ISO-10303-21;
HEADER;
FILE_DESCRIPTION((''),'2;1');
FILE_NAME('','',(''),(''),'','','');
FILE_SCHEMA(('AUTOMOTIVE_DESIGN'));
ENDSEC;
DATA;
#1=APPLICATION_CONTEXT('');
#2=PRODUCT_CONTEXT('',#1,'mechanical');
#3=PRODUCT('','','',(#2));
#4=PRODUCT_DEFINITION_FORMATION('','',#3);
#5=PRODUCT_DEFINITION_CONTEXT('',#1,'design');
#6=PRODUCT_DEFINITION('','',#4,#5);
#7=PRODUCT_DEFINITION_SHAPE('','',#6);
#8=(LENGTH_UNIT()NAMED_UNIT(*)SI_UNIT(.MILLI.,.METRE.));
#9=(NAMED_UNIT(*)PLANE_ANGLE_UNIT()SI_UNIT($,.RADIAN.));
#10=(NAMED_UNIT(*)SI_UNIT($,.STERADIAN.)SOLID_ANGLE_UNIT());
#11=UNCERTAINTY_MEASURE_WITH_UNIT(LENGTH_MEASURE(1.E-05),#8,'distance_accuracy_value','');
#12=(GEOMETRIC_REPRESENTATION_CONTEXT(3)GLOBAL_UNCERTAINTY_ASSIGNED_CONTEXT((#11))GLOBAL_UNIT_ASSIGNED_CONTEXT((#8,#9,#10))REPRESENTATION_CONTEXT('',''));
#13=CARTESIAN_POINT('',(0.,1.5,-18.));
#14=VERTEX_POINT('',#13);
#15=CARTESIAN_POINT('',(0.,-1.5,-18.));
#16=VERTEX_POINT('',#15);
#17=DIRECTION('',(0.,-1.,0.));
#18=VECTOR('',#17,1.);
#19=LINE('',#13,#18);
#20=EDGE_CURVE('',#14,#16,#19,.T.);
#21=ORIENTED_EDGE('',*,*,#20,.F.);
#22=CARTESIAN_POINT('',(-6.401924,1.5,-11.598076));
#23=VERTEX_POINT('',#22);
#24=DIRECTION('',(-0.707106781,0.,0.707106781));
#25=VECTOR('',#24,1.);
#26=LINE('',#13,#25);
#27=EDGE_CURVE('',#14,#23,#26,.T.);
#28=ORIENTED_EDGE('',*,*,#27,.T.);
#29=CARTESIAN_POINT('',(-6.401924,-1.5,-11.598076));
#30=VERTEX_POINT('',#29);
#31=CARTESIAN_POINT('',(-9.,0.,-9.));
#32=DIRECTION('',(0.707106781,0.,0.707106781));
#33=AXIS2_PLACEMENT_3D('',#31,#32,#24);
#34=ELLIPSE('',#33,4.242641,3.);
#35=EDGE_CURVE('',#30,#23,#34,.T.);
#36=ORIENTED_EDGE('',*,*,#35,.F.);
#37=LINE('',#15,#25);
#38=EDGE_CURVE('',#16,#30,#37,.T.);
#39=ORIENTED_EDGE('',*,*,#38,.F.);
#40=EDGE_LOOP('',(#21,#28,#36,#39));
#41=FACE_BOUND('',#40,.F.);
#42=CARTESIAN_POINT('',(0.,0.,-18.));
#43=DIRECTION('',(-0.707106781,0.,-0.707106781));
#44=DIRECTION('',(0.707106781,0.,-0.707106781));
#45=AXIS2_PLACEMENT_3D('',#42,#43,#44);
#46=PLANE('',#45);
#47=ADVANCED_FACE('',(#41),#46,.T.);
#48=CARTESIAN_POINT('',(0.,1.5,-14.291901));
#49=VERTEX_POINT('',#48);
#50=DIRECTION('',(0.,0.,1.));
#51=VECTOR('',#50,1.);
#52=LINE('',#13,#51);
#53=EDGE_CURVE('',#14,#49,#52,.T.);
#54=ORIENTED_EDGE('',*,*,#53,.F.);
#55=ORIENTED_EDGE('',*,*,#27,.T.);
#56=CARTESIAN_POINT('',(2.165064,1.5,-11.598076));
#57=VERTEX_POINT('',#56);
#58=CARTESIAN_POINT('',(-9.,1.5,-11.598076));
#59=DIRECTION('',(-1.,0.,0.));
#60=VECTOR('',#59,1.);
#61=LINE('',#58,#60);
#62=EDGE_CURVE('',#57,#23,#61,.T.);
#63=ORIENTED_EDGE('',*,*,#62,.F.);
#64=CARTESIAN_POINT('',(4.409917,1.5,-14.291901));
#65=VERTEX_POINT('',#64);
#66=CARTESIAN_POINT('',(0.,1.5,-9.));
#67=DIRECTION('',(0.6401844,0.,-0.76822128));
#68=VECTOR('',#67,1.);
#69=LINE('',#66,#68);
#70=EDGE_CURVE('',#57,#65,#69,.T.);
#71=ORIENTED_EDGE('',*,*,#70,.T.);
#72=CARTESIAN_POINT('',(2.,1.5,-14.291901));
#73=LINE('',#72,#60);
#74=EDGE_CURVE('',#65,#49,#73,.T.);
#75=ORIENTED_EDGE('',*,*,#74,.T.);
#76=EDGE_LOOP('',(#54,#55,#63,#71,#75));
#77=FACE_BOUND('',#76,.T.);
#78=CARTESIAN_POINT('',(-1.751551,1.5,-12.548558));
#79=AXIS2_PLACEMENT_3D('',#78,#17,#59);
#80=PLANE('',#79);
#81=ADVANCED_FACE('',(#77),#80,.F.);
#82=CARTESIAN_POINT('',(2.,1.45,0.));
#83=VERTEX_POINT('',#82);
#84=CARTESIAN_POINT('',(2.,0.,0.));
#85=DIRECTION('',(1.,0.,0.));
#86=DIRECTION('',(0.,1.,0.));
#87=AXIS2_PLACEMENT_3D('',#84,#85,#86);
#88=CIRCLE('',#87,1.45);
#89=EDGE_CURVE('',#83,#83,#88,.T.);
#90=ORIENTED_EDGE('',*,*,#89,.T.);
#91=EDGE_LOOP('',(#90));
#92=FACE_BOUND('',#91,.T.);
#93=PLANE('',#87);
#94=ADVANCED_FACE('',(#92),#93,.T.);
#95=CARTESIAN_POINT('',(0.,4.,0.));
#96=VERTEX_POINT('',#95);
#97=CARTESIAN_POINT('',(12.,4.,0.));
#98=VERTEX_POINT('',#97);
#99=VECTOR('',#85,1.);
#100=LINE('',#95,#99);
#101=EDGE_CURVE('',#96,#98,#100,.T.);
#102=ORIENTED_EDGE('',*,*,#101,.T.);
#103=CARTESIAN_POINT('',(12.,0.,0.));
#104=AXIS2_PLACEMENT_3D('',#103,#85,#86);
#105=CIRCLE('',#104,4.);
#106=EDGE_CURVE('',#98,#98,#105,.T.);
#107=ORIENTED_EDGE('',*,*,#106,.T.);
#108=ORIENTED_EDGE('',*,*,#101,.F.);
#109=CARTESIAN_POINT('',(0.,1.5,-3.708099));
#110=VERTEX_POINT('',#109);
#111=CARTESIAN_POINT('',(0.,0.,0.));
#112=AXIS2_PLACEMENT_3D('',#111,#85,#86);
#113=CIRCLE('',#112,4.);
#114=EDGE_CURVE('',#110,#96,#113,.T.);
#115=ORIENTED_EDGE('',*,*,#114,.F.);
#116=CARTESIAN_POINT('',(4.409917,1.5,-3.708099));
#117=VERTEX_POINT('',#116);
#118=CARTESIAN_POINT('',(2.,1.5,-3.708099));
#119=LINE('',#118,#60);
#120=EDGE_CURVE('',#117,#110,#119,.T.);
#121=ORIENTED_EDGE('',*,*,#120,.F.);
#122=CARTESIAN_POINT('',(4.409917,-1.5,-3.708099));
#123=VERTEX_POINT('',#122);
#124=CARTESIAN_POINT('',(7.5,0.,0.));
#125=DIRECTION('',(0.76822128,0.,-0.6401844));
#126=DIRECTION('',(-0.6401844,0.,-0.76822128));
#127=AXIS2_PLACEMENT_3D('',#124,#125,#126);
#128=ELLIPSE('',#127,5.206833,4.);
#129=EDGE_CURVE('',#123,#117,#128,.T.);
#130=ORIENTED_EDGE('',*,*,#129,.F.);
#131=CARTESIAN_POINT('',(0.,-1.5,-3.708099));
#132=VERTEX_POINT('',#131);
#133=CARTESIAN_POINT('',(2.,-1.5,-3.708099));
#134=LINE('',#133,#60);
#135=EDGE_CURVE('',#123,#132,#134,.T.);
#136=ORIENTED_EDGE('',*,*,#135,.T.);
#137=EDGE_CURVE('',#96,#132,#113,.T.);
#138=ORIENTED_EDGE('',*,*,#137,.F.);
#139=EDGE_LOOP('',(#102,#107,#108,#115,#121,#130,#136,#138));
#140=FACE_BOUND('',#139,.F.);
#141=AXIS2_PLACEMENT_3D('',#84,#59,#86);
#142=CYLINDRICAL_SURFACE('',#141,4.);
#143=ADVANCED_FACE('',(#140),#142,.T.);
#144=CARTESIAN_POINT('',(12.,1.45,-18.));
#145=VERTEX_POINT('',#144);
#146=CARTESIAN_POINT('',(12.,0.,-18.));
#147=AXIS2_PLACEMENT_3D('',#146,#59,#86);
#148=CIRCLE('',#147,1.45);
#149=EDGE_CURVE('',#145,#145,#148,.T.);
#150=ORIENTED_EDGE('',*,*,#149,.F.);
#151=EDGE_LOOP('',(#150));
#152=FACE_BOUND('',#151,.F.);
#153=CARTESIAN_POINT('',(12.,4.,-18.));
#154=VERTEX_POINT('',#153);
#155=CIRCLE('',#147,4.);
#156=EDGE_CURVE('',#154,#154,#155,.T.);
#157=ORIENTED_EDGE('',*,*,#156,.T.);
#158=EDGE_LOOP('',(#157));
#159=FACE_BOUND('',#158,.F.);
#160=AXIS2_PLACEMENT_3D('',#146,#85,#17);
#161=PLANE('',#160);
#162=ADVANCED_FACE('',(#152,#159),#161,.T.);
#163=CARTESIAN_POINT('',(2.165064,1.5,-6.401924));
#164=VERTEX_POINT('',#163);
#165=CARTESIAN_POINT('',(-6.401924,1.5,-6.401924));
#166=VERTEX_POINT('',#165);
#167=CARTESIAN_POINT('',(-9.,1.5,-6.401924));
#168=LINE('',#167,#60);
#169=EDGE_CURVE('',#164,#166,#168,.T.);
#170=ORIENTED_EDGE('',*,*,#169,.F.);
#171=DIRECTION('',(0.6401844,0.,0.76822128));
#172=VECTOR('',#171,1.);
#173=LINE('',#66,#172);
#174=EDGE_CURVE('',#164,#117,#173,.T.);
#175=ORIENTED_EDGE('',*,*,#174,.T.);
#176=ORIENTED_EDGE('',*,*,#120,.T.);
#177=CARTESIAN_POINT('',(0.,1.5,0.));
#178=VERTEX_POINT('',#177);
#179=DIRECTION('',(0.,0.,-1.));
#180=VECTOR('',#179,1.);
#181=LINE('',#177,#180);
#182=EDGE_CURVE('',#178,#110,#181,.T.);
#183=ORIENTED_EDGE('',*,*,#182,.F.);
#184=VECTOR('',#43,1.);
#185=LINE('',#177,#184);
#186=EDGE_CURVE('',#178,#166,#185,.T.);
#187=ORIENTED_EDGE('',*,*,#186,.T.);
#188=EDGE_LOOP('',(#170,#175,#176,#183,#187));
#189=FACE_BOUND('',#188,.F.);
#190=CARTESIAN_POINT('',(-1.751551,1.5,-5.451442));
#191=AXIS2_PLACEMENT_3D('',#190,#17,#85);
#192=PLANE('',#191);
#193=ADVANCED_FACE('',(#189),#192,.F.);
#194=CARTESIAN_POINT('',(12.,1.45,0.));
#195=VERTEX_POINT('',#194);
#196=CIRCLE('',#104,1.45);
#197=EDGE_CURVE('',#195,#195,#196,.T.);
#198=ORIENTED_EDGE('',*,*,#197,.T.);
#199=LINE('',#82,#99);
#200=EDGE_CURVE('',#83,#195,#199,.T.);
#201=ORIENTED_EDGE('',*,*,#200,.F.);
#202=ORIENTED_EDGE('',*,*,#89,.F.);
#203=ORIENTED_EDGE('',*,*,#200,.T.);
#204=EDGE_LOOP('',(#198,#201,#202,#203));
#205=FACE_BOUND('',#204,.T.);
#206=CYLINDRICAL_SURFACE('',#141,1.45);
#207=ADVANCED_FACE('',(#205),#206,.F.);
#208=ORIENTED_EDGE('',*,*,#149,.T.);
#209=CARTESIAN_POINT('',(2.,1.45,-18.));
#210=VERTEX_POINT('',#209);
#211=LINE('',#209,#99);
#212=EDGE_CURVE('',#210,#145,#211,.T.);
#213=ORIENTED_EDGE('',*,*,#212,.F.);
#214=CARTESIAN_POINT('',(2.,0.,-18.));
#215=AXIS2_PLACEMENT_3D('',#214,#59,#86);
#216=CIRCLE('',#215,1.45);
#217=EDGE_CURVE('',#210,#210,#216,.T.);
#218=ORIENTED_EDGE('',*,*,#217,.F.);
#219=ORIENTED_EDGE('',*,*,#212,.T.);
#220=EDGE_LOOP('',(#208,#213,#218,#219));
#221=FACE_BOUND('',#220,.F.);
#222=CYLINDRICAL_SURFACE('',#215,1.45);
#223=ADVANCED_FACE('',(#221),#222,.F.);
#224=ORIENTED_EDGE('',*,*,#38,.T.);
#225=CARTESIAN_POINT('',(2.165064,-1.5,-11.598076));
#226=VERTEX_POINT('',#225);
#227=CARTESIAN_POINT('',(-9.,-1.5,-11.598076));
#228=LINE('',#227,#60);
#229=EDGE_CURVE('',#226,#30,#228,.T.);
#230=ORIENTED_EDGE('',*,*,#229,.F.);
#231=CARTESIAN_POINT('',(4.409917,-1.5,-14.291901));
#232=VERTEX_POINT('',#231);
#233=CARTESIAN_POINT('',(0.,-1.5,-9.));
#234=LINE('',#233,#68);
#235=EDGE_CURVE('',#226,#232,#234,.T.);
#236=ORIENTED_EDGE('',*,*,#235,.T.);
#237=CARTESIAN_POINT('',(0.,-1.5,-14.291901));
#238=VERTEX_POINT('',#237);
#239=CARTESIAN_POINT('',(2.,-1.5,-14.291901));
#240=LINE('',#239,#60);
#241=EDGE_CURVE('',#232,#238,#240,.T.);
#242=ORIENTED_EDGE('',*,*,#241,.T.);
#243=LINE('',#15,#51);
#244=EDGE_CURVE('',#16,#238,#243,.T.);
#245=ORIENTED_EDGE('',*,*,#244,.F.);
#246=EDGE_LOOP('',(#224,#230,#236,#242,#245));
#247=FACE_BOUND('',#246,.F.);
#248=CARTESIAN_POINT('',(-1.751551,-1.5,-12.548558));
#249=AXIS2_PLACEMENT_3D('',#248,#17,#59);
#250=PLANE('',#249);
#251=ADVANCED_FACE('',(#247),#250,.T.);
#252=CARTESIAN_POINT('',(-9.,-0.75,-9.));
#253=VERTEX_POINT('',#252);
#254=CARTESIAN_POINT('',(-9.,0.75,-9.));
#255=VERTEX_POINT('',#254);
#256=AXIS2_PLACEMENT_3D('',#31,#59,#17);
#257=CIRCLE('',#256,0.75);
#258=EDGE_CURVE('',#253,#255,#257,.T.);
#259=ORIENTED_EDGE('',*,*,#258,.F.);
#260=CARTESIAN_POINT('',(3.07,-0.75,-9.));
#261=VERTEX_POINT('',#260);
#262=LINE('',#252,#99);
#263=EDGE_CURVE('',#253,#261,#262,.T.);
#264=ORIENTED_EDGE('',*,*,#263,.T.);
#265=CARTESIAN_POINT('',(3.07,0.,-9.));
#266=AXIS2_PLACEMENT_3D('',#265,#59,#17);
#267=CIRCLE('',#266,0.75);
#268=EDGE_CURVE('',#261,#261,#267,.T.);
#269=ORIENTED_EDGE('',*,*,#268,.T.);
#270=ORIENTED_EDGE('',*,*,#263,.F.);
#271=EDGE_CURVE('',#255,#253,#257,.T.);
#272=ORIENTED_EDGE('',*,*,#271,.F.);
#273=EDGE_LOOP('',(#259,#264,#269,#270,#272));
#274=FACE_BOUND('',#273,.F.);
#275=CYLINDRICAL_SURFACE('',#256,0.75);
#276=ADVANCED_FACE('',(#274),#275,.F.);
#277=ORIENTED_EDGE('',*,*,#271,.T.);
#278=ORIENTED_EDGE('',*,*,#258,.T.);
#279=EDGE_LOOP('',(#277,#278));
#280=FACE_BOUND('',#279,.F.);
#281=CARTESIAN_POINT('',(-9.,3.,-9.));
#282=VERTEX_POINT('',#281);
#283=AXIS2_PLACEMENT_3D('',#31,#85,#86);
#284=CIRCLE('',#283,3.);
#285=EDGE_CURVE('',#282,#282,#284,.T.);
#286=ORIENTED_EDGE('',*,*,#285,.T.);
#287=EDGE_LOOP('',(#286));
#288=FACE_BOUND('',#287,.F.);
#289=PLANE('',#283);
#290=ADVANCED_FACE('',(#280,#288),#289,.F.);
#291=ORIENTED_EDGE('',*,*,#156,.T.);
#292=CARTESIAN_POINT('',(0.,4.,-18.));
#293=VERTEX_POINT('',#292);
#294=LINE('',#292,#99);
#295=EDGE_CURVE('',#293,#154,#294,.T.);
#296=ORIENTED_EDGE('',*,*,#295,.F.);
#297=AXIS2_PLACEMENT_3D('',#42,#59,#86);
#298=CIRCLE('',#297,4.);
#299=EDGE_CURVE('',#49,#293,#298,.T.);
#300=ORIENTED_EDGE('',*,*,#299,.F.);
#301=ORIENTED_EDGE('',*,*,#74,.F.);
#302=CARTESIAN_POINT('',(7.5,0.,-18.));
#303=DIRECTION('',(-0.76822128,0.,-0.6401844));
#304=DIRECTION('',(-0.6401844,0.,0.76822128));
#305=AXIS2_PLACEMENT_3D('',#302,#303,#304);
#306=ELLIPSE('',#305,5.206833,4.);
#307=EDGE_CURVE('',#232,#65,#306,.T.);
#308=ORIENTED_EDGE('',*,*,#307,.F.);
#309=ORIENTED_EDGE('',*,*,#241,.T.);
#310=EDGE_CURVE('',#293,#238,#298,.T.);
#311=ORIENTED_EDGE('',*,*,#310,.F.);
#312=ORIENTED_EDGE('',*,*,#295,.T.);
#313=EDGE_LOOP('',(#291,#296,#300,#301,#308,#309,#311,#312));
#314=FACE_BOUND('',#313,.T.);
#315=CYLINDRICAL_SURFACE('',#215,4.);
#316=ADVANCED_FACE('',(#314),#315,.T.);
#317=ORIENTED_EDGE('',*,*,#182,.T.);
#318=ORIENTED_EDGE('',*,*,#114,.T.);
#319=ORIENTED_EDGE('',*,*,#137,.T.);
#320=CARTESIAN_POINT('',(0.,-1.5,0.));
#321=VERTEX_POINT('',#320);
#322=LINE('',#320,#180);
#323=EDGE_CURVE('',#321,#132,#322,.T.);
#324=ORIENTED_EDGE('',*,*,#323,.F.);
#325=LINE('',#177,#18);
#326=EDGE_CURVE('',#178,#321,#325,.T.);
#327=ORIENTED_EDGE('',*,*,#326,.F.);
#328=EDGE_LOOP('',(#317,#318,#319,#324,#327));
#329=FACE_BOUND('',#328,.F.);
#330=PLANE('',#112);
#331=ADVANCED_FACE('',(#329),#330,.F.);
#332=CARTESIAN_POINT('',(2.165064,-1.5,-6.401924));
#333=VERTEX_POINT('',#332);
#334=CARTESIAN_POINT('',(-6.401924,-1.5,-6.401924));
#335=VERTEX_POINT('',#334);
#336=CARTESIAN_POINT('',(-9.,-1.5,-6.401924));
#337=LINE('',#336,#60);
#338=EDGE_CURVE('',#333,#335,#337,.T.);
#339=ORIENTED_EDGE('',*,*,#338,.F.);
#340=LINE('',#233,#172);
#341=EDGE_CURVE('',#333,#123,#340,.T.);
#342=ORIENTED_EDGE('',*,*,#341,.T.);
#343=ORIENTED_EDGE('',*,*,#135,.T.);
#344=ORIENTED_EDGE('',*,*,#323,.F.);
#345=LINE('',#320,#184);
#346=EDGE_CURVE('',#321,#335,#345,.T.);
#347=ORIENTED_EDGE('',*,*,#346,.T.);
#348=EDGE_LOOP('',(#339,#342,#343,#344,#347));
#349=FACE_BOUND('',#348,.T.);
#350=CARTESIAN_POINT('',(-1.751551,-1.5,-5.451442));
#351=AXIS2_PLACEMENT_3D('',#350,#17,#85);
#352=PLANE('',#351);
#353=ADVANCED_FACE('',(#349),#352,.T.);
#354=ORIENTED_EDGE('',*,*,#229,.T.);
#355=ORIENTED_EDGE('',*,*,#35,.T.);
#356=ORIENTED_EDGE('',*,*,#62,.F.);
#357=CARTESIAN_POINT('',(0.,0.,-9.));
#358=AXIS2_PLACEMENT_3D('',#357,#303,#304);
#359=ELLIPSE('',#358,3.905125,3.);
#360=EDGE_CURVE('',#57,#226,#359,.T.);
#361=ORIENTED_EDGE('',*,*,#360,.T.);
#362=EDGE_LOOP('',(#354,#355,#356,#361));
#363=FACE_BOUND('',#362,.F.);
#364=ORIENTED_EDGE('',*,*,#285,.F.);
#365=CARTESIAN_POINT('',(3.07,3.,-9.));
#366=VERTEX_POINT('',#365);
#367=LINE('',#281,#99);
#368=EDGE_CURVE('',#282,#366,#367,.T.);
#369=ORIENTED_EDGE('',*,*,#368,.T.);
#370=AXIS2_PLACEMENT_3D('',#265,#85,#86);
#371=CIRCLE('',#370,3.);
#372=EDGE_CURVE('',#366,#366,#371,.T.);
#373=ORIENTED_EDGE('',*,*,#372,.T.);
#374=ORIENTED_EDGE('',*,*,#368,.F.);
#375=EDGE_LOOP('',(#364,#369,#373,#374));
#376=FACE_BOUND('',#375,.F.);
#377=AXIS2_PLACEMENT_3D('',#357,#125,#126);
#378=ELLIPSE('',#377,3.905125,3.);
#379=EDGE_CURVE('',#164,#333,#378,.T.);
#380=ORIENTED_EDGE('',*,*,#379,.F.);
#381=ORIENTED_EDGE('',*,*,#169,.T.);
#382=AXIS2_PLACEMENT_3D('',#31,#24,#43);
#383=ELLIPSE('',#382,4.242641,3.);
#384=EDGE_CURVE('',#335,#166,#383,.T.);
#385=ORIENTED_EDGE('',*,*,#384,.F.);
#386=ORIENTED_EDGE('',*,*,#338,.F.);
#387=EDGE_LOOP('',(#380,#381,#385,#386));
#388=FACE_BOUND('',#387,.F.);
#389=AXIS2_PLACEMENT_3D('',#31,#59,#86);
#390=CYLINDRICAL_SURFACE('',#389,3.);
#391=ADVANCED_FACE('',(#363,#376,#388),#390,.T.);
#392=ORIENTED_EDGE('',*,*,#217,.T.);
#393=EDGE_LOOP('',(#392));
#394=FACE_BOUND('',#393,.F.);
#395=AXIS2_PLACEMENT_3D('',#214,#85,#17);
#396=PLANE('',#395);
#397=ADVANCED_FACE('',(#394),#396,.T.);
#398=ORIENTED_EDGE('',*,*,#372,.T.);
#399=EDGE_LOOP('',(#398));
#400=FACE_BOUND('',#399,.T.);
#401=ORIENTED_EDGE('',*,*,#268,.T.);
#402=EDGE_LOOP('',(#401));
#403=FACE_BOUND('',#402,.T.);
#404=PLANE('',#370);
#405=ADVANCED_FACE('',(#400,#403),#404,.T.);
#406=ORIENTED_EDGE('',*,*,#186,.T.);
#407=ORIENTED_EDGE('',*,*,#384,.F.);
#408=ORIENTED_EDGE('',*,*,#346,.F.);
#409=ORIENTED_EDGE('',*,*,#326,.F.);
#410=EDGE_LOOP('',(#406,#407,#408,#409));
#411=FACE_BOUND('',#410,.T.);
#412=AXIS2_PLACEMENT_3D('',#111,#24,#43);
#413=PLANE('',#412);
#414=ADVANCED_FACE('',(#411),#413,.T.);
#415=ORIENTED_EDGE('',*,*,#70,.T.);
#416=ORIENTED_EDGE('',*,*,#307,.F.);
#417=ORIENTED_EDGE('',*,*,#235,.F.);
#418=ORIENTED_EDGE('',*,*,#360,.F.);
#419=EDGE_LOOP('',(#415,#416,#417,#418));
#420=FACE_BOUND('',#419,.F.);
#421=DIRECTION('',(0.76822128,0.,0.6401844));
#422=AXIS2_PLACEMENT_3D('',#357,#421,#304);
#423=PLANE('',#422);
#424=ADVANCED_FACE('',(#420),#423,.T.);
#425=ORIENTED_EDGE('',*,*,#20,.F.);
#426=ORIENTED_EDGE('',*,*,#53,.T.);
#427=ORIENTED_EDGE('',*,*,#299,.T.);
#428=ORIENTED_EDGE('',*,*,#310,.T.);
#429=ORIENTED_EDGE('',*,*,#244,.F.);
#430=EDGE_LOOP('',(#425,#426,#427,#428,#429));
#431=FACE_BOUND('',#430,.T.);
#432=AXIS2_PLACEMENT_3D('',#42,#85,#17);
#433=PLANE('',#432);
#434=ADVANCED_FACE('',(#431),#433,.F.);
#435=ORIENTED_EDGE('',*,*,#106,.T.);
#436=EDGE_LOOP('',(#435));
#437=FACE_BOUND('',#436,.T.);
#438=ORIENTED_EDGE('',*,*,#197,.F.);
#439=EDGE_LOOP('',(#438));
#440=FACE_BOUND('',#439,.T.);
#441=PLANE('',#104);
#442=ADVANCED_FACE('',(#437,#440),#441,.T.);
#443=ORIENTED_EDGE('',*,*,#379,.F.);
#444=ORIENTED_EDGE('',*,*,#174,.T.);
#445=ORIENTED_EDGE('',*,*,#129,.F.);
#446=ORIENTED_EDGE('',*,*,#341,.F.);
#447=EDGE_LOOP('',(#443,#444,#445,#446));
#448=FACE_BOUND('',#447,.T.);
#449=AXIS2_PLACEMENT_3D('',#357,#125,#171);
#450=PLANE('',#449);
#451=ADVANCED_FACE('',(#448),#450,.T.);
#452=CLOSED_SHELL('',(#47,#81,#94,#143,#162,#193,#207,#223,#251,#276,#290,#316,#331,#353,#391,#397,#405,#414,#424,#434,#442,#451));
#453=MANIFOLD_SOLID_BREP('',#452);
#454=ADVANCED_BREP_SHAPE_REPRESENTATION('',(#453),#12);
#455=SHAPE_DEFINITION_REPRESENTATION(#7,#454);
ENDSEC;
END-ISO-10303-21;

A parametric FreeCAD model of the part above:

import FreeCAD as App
import Part
import Sketcher
from FreeCAD import Vector
Q = App.Units.Quantity


def add_polygon(sketch, points):
    """Adds a closed chain of lines whose ends are joined by coincident constraints."""
    first, n = sketch.GeometryCount, len(points)
    for a, b in zip(points, points[1:] + points[:1]):
        sketch.addGeometry(Part.LineSegment(App.Vector(*a, 0), App.Vector(*b, 0)), False)
    for i in range(n):
        sketch.addConstraint(Sketcher.Constraint("Coincident", first + i, 2, first + (i + 1) % n, 1))

doc = App.newDocument("Part")
body = doc.addObject("PartDesign::Body", "Body")

sketch1 = body.newObject("Sketcher::SketchObject", "Sketch")
sketch1.AttachmentSupport = (doc.getObject("YZ_Plane"), [""])
sketch1.MapMode = "FlatFace"
sketch1.addGeometry(Part.Circle(Vector(0, 0, 0), Vector(0, 0, 1), 4), False)
sketch1.addConstraint([
    Sketcher.Constraint("Coincident", 0, 3, -1, 1),
    Sketcher.Constraint("Diameter", 0, Q("8 mm")),
])
pad1 = body.newObject("PartDesign::Pad", "Pad")
pad1.Profile = sketch1
pad1.Length = 2

sketch2 = body.newObject("Sketcher::SketchObject", "Sketch001")
sketch2.AttachmentSupport = (doc.getObject("YZ_Plane"), [""])
sketch2.MapMode = "FlatFace"
sketch2.AttachmentOffset = App.Placement(Vector(0, 0, 2), App.Rotation())
sketch2.addGeometry([
    Part.Circle(Vector(0, 0, 0), Vector(0, 0, 1), 4),
    Part.Circle(Vector(0, 0, 0), Vector(0, 0, 1), 1.4),
], False)
sketch2.addConstraint([
    Sketcher.Constraint("Coincident", 0, 3, -1, 1),
    Sketcher.Constraint("Coincident", 1, 3, -1, 1),
    Sketcher.Constraint("Diameter", 0, Q("8 mm")),
    Sketcher.Constraint("Diameter", 1, Q("2.9 mm")),
])
pad2 = body.newObject("PartDesign::Pad", "Pad001")
pad2.Profile = sketch2
pad2.Length = 10

sketch3 = body.newObject("Sketcher::SketchObject", "Sketch002")
sketch3.AttachmentSupport = (doc.getObject("XZ_Plane"), [""])
sketch3.MapMode = "FlatFace"
add_polygon(sketch3, [(0, -3), (0, 0), (-9, -9), (0, -9), (5, -3)])
sketch3.addConstraint([
    Sketcher.Constraint("Vertical", 0),
    Sketcher.Constraint("Horizontal", 2),
    Sketcher.Constraint("Horizontal", 4),
    Sketcher.Constraint("Coincident", 0, 2, -1, 1),
    Sketcher.Constraint("PointOnObject", 2, 2, -2),
    Sketcher.Constraint("DistanceX", 2, 1, 2, 2, Q("9 mm")),
    Sketcher.Constraint("DistanceX", 4, 2, 4, 1, Q("5 mm")),
    Sketcher.Constraint("DistanceY", 0, 1, 0, 2, Q("3 mm")),
    Sketcher.Constraint("Angle", 1, Q("-135 deg")),
])
pad3 = body.newObject("PartDesign::Pad", "Pad002")
pad3.Profile = sketch3
pad3.Length = 3
pad3.Midplane = True

sketch4 = body.newObject("Sketcher::SketchObject", "Sketch003")
sketch4.AttachmentSupport = (doc.getObject("YZ_Plane"), [""])
sketch4.MapMode = "FlatFace"
sketch4.AttachmentOffset = App.Placement(Vector(0, 0, -9), App.Rotation())
sketch4.addGeometry(Part.Circle(Vector(0, -9, 0), Vector(0, 0, 1), 3), False)
sketch4.addConstraint([
    Sketcher.Constraint("PointOnObject", 0, 3, -2),
    Sketcher.Constraint("Diameter", 0, Q("6 mm")),
    Sketcher.Constraint("DistanceY", 0, 3, -1, 1, Q("9 mm")),
])
pad4 = body.newObject("PartDesign::Pad", "Pad003")
pad4.Profile = sketch4
pad4.Length = 12.07

sketch5 = body.newObject("Sketcher::SketchObject", "Sketch004")
sketch5.AttachmentSupport = (doc.getObject("YZ_Plane"), [""])
sketch5.MapMode = "FlatFace"
sketch5.AttachmentOffset = App.Placement(Vector(0, 0, -9), App.Rotation())
sketch5.addGeometry(Part.Circle(Vector(0, -9, 0), Vector(0, 0, 1), 0.8), False)
sketch5.addConstraint([
    Sketcher.Constraint("PointOnObject", 0, 3, -2),
    Sketcher.Constraint("Diameter", 0, Q("1.5 mm")),
    Sketcher.Constraint("DistanceY", 0, 3, -1, 1, Q("9 mm")),
])
pocket1 = body.newObject("PartDesign::Pocket", "Pocket")
pocket1.Profile = sketch5
pocket1.Length = 25
pocket1.Reversed = True
body2 = doc.addObject("PartDesign::Body", "Body001")
doc.recompute()

body2.BaseFeature = body
doc.recompute()

mirroring = doc.addObject("Part::Mirroring", "Mirroring")
mirroring.Source = body
mirroring.Base = Vector(0, 0, -9)
mirroring.Normal = Vector(0, 0, 1)
body3 = doc.addObject("PartDesign::Body", "Body002")
body3.BaseFeature = mirroring
boolean = body2.newObject("PartDesign::Boolean", "Boolean")
boolean.Type = "Fuse"
boolean.addObjects([body3])
doc.recompute()
mirroring.Visibility = False

doc.recompute()
